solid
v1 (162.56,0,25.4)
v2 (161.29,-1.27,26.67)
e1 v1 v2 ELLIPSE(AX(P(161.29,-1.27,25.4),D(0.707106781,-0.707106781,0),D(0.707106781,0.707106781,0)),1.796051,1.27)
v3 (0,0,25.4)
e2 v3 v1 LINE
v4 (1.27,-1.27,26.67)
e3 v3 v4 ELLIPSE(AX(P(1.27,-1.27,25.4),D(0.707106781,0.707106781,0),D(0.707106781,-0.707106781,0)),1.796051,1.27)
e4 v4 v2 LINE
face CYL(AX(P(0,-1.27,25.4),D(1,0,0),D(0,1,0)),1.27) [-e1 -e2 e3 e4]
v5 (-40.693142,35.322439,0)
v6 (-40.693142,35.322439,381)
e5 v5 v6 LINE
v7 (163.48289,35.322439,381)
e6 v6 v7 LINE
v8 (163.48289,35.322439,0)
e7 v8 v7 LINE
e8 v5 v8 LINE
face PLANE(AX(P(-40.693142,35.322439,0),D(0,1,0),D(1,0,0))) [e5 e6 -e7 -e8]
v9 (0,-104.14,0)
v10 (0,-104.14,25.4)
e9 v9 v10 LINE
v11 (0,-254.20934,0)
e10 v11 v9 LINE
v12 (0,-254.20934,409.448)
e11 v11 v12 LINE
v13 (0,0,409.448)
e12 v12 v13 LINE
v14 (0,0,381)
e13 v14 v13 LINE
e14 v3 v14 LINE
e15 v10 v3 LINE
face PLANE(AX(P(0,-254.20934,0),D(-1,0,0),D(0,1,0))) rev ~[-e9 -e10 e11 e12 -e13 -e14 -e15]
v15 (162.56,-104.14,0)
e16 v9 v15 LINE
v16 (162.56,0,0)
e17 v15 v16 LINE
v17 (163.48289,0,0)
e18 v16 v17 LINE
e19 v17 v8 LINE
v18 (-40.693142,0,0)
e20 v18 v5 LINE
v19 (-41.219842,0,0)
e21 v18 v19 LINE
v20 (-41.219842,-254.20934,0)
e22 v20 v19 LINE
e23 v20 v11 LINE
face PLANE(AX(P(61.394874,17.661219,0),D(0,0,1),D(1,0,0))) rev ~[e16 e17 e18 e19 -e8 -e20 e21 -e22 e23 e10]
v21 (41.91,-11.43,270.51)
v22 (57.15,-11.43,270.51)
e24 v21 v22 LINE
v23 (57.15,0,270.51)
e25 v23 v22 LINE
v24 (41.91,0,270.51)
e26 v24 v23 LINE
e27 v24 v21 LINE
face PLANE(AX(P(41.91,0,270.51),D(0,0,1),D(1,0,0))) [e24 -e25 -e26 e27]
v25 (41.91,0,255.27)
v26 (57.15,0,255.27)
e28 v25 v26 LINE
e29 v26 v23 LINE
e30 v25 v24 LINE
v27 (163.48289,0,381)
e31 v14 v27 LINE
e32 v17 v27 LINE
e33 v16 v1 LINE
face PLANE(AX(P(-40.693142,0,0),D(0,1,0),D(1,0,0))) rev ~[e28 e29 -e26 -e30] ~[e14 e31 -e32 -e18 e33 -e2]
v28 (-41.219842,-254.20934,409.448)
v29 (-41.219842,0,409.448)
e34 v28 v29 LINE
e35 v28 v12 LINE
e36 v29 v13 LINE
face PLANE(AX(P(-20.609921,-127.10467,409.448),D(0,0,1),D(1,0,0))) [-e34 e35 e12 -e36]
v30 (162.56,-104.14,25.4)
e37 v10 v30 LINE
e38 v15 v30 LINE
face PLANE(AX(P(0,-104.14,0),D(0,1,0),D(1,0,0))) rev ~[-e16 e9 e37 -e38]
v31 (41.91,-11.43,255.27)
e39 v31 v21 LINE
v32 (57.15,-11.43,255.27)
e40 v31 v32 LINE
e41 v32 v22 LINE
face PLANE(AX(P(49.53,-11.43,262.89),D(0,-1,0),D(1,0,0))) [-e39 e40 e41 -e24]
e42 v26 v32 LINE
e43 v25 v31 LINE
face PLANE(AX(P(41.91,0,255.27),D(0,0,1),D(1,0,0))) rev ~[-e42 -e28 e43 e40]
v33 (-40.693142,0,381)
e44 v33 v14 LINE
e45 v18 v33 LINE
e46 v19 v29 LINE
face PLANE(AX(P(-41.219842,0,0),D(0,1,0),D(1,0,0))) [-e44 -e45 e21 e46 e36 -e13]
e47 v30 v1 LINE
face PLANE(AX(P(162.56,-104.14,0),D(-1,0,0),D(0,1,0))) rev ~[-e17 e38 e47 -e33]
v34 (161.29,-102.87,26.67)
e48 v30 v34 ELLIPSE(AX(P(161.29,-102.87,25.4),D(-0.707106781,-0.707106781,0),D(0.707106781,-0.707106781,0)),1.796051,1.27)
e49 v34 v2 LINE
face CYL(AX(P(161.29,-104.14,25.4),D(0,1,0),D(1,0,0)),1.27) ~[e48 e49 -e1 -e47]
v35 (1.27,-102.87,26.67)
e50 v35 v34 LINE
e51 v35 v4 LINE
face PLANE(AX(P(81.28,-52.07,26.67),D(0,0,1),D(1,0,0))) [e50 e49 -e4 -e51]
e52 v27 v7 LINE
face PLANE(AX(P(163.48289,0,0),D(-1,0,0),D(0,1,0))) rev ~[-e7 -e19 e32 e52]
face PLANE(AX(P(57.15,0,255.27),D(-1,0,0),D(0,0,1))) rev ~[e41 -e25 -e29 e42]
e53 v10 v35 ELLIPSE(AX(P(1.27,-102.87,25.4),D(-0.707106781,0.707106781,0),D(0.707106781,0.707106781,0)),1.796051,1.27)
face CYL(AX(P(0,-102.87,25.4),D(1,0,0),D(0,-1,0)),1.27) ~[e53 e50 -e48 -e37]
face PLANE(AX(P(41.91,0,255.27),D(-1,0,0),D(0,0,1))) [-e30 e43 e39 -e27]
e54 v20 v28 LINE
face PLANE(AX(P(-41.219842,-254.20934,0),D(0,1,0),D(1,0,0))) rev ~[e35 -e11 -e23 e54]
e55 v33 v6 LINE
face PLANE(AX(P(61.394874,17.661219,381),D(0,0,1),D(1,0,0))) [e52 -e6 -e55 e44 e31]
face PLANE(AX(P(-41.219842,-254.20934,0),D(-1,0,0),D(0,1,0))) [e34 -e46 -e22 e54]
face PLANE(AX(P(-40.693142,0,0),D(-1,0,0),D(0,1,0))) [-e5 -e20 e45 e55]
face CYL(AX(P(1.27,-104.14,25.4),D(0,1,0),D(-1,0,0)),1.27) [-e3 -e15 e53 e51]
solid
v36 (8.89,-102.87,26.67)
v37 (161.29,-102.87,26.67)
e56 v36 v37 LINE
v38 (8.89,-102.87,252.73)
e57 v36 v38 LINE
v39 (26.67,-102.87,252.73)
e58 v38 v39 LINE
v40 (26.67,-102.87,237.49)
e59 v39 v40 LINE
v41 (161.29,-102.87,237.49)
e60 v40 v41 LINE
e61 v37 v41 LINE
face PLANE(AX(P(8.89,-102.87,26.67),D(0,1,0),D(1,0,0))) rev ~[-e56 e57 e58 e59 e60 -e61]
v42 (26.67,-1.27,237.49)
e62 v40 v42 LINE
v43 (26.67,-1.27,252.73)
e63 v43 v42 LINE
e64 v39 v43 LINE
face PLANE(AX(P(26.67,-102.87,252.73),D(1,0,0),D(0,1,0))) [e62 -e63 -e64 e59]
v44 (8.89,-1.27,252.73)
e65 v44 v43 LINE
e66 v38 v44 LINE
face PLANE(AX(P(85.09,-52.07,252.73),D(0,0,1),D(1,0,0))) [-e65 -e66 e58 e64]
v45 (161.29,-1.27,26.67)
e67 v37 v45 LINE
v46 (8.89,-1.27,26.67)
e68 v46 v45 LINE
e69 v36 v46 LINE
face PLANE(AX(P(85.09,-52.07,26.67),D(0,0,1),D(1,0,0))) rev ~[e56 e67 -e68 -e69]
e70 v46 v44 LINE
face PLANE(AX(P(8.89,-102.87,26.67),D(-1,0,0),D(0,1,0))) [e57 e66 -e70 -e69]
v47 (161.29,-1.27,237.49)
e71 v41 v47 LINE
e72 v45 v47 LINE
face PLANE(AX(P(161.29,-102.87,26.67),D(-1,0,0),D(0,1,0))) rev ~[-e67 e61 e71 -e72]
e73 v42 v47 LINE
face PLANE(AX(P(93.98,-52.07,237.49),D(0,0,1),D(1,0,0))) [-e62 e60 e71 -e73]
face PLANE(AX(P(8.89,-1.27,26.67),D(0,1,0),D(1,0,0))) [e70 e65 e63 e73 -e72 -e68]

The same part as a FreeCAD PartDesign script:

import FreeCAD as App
import Part
import Sketcher
from FreeCAD import Vector
Q = App.Units.Quantity


def edges_at(feature, points):
    """Names of the edges that pass closest to the given points."""
    edges = feature.Shape.Edges
    near = lambda p: min(range(len(edges)), key=lambda i: edges[i].distToShape(Part.Vertex(*p))[0])
    return sorted({f"Edge{near(p) + 1}" for p in points})


def add_polygon(sketch, points):
    """Adds a closed chain of lines whose ends are joined by coincident constraints."""
    first, n = sketch.GeometryCount, len(points)
    for a, b in zip(points, points[1:] + points[:1]):
        sketch.addGeometry(Part.LineSegment(App.Vector(*a, 0), App.Vector(*b, 0)), False)
    for i in range(n):
        sketch.addConstraint(Sketcher.Constraint("Coincident", first + i, 2, first + (i + 1) % n, 1))

doc = App.newDocument("Part")
body = doc.addObject("PartDesign::Body", "Body")

sketch1 = body.newObject("Sketcher::SketchObject", "Sketch")
sketch1.AttachmentSupport = (doc.getObject("XY_Plane"), [""])
sketch1.MapMode = "FlatFace"
add_polygon(sketch1, [(0, 0), (0, -104), (163, -104), (163, 0)])
sketch1.addConstraint([
    Sketcher.Constraint("Vertical", 0),
    Sketcher.Constraint("Horizontal", 1),
    Sketcher.Constraint("Vertical", 2),
    Sketcher.Constraint("Horizontal", 3),
    Sketcher.Constraint("Coincident", 3, 2, -1, 1),
    Sketcher.Constraint("DistanceX", 1, 1, 1, 2, Q("6.4 in")),
    Sketcher.Constraint("DistanceY", 0, 2, 0, 1, Q("4.1 in")),
])
pad1 = body.newObject("PartDesign::Pad", "Pad")
pad1.Profile = sketch1
pad1.Length = Q("1.05 in")
doc.recompute()

fillet = body.newObject("PartDesign::Fillet", "Fillet")
fillet.Base = (pad1, edges_at(pad1, [
    (81.28, 0, 26.67),
    (0, -52.07, 26.67),
    (81.28, -104.14, 26.67),
    (162.56, -52.07, 26.67),
]))
fillet.Radius = Q("0.05 in")

sketch2 = body.newObject("Sketcher::SketchObject", "Sketch001")
sketch2.AttachmentSupport = (doc.getObject("XY_Plane"), [""])
sketch2.MapMode = "FlatFace"
add_polygon(sketch2, [(-41, 0), (-41, -254), (0, -254), (0, 0)])
sketch2.addConstraint([
    Sketcher.Constraint("Vertical", 0),
    Sketcher.Constraint("Horizontal", 1),
    Sketcher.Constraint("Vertical", 2),
    Sketcher.Constraint("Horizontal", 3),
    Sketcher.Constraint("Coincident", 2, 2, -1, 1),
    Sketcher.Constraint("DistanceX", 1, 1, 1, 2, 41.219842),
    Sketcher.Constraint("DistanceY", 0, 2, 0, 1, 254.20934),
])
pad2 = body.newObject("PartDesign::Pad", "Pad001")
pad2.Profile = sketch2
pad2.Length = Q("16.12 in")

sketch3 = body.newObject("Sketcher::SketchObject", "Sketch002")
sketch3.AttachmentSupport = (doc.getObject("XY_Plane"), [""])
sketch3.MapMode = "FlatFace"
add_polygon(sketch3, [(-41, 35), (-41, 0), (163, 0), (163, 35)])
sketch3.addConstraint([
    Sketcher.Constraint("Vertical", 0),
    Sketcher.Constraint("Horizontal", 1),
    Sketcher.Constraint("Vertical", 2),
    Sketcher.Constraint("Horizontal", 3),
    Sketcher.Constraint("PointOnObject", 0, 2, -1),
    Sketcher.Constraint("DistanceX", 1, 1, 1, 2, 204.176031),
    Sketcher.Constraint("DistanceY", 0, 2, 0, 1, 35.322439),
    Sketcher.Constraint("DistanceX", 0, 2, -1, 1, 40.693142),
])
pad3 = body.newObject("PartDesign::Pad", "Pad002")
pad3.Profile = sketch3
pad3.Length = Q("15 in")

sketch4 = body.newObject("Sketcher::SketchObject", "Sketch003")
sketch4.AttachmentSupport = (doc.getObject("XZ_Plane"), [""])
sketch4.MapMode = "FlatFace"
add_polygon(sketch4, [(42, 271), (42, 255), (57, 255), (57, 271)])
sketch4.addConstraint([
    Sketcher.Constraint("Vertical", 0),
    Sketcher.Constraint("Horizontal", 1),
    Sketcher.Constraint("Vertical", 2),
    Sketcher.Constraint("Horizontal", 3),
    Sketcher.Constraint("Equal", 3, 0),
    Sketcher.Constraint("DistanceX", 1, 1, 1, 2, Q("0.6 in")),
    Sketcher.Constraint("DistanceX", -1, 1, 0, 2, Q("1.65 in")),
    Sketcher.Constraint("DistanceY", -1, 1, 0, 2, Q("10.05 in")),
])
pad4 = body.newObject("PartDesign::Pad", "Pad003")
pad4.Profile = sketch4
pad4.Length = Q("0.45 in")
body2 = doc.addObject("PartDesign::Body", "Body001")

sketch5 = body2.newObject("Sketcher::SketchObject", "Sketch004")
sketch5.AttachmentSupport = (doc.getObject("XY_Plane001"), [""])
sketch5.MapMode = "FlatFace"
sketch5.AttachmentOffset = App.Placement(Vector(0, 0, 1.05 * 25.4), App.Rotation())
add_polygon(sketch5, [(9, -1), (9, -103), (161, -103), (161, -1)])
sketch5.addConstraint([
    Sketcher.Constraint("Vertical", 0),
    Sketcher.Constraint("Horizontal", 1),
    Sketcher.Constraint("Vertical", 2),
    Sketcher.Constraint("Horizontal", 3),
    Sketcher.Constraint("DistanceX", 1, 1, 1, 2, Q("6 in")),
    Sketcher.Constraint("DistanceY", 0, 2, 0, 1, Q("4 in")),
    Sketcher.Constraint("DistanceX", -1, 1, 0, 2, Q("0.35 in")),
    Sketcher.Constraint("DistanceY", 0, 2, -1, 1, Q("4.05 in")),
])
pad5 = body2.newObject("PartDesign::Pad", "Pad004")
pad5.Profile = sketch5
pad5.Length = Q("8.9 in")

sketch6 = body2.newObject("Sketcher::SketchObject", "Sketch005")
sketch6.AttachmentSupport = (doc.getObject("XY_Plane001"), [""])
sketch6.MapMode = "FlatFace"
sketch6.AttachmentOffset = App.Placement(Vector(0, 0, 9.95 * 25.4), App.Rotation())
add_polygon(sketch6, [(27, -1), (27, -103), (161, -103), (161, -1)])
sketch6.addConstraint([
    Sketcher.Constraint("Vertical", 0),
    Sketcher.Constraint("Horizontal", 1),
    Sketcher.Constraint("Vertical", 2),
    Sketcher.Constraint("Horizontal", 3),
    Sketcher.Constraint("DistanceY", 0, 2, 0, 1, Q("4 in")),
    Sketcher.Constraint("DistanceX", 1, 1, 1, 2, Q("5.3 in")),
    Sketcher.Constraint("DistanceX", -1, 1, 0, 2, Q("1.05 in")),
    Sketcher.Constraint("DistanceY", 0, 2, -1, 1, Q("4.05 in")),
])
pocket1 = body2.newObject("PartDesign::Pocket", "Pocket")
pocket1.Profile = sketch6
pocket1.Length = Q("0.6 in")

doc.recompute()
